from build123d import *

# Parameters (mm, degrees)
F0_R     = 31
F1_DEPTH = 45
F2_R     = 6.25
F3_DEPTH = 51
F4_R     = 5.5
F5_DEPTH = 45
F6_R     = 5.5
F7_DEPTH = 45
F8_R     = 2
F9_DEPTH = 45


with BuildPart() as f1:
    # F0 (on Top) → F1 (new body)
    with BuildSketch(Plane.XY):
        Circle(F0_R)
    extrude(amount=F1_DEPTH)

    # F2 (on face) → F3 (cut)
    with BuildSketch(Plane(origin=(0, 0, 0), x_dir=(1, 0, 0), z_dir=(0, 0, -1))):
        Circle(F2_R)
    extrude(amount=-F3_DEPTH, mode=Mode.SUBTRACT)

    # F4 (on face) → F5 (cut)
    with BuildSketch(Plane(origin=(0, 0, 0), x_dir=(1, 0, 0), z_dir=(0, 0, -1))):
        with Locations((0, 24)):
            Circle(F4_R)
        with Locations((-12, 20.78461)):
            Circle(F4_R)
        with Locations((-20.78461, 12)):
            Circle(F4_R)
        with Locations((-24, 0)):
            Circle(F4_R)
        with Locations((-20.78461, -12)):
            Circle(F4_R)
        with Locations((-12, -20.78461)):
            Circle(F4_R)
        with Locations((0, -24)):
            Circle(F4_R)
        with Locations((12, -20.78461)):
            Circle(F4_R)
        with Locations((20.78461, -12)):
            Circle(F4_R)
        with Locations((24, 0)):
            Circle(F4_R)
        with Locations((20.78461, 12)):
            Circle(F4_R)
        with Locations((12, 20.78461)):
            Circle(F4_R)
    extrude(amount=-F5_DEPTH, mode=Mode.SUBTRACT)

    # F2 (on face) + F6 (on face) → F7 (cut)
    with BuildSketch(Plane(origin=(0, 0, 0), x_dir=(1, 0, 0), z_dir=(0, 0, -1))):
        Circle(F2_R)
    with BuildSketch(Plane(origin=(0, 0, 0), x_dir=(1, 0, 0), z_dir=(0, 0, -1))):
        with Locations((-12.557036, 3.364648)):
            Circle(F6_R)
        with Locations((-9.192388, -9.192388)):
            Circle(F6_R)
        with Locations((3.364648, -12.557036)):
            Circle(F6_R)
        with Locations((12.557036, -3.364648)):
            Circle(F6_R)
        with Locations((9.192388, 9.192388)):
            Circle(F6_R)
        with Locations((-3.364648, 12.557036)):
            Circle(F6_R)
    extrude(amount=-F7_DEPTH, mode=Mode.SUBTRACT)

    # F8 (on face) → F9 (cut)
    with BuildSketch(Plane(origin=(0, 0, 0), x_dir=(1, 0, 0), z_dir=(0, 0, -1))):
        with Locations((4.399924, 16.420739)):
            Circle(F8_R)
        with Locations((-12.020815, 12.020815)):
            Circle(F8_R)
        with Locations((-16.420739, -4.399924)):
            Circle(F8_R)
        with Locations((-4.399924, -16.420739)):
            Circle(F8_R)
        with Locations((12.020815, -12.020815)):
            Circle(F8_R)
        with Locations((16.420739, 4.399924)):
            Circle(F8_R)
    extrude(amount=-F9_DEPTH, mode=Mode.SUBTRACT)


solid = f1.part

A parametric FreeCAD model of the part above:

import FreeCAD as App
import Part
import Sketcher

V = App.Vector
Q = App.Units.Quantity

doc = App.newDocument("Part")
body = doc.addObject("PartDesign::Body", "Body")

sketch1 = body.newObject("Sketcher::SketchObject", "Sketch")
sketch1.AttachmentSupport = (doc.getObject("XY_Plane"), [""])
sketch1.MapMode = "FlatFace"
sketch1.addGeometry(Part.Circle(V(0, 0, 0), V(0, 0, 1), 31), False)
sketch1.addConstraint(Sketcher.Constraint("Coincident", 0, 3, -1, 1))
sketch1.addConstraint(Sketcher.Constraint("Diameter", 0, Q("62 mm")))
pad1 = body.newObject("PartDesign::Pad", "Pad")
pad1.Profile = sketch1
pad1.Length = 45

sketch2 = body.newObject("Sketcher::SketchObject", "Sketch001")
sketch2.AttachmentSupport = (doc.getObject("XY_Plane"), [""])
sketch2.MapMode = "FlatFace"
sketch2.addGeometry(Part.Circle(V(0, 0, 0), V(0, 0, 1), 6), False)
sketch2.addConstraint(Sketcher.Constraint("Coincident", 0, 3, -1, 1))
sketch2.addConstraint(Sketcher.Constraint("Diameter", 0, Q("12.5 mm")))
pocket1 = body.newObject("PartDesign::Pocket", "Pocket")
pocket1.Profile = sketch2
pocket1.Length = 51
pocket1.Reversed = True

sketch3 = body.newObject("Sketcher::SketchObject", "Sketch002")
sketch3.AttachmentSupport = (doc.getObject("XY_Plane"), [""])
sketch3.MapMode = "FlatFace"
sketch3.addGeometry(Part.Circle(V(0, -24, 0), V(0, 0, 1), 6), False)
sketch3.addGeometry(Part.Circle(V(-12, -21, 0), V(0, 0, 1), 6), False)
sketch3.addGeometry(Part.Circle(V(-21, -12, 0), V(0, 0, 1), 6), False)
sketch3.addGeometry(Part.Circle(V(-24, 0, 0), V(0, 0, 1), 6), False)
sketch3.addGeometry(Part.Circle(V(-21, 12, 0), V(0, 0, 1), 6), False)
sketch3.addGeometry(Part.Circle(V(-12, 21, 0), V(0, 0, 1), 6), False)
sketch3.addGeometry(Part.Circle(V(0, 24, 0), V(0, 0, 1), 6), False)
sketch3.addGeometry(Part.Circle(V(12, 21, 0), V(0, 0, 1), 6), False)
sketch3.addGeometry(Part.Circle(V(21, 12, 0), V(0, 0, 1), 6), False)
sketch3.addGeometry(Part.Circle(V(24, 0, 0), V(0, 0, 1), 6), False)
sketch3.addGeometry(Part.Circle(V(21, -12, 0), V(0, 0, 1), 6), False)
sketch3.addGeometry(Part.Circle(V(12, -21, 0), V(0, 0, 1), 6), False)
sketch3.addConstraint(Sketcher.Constraint("Equal", 0, 1))
sketch3.addConstraint(Sketcher.Constraint("Equal", 1, 2))
sketch3.addConstraint(Sketcher.Constraint("Equal", 2, 3))
sketch3.addConstraint(Sketcher.Constraint("Equal", 3, 4))
sketch3.addConstraint(Sketcher.Constraint("Equal", 4, 5))
sketch3.addConstraint(Sketcher.Constraint("Equal", 5, 6))
sketch3.addConstraint(Sketcher.Constraint("Equal", 6, 7))
sketch3.addConstraint(Sketcher.Constraint("Equal", 7, 8))
sketch3.addConstraint(Sketcher.Constraint("Equal", 8, 9))
sketch3.addConstraint(Sketcher.Constraint("Equal", 9, 10))
sketch3.addConstraint(Sketcher.Constraint("Equal", 10, 11))
sketch3.addConstraint(Sketcher.Constraint("Symmetric", 0, 3, 6, 3, -1, 1))
sketch3.addConstraint(Sketcher.Constraint("Symmetric", 1, 3, 7, 3, -1, 1))
sketch3.addConstraint(Sketcher.Constraint("Symmetric", 2, 3, 8, 3, -1, 1))
sketch3.addConstraint(Sketcher.Constraint("Symmetric", 3, 3, 9, 3, -1, 1))
sketch3.addConstraint(Sketcher.Constraint("Symmetric", 4, 3, 10, 3, -1, 1))
sketch3.addConstraint(Sketcher.Constraint("Symmetric", 5, 3, 11, 3, -1, 1))
sketch3.addConstraint(Sketcher.Constraint("Symmetric", 5, 3, 7, 3, -2))
sketch3.addConstraint(Sketcher.Constraint("Symmetric", 4, 3, 8, 3, -2))
sketch3.addConstraint(Sketcher.Constraint("PointOnObject", 0, 3, -2))
sketch3.addConstraint(Sketcher.Constraint("PointOnObject", 3, 3, -1))
sketch3.addConstraint(Sketcher.Constraint("Diameter", 0, Q("11 mm")))
sketch3.addConstraint(Sketcher.Constraint("DistanceY", 0, 3, -1, 1, Q("24 mm")))
sketch3.addConstraint(Sketcher.Constraint("DistanceX", 1, 3, -1, 1, Q("12 mm")))
sketch3.addConstraint(Sketcher.Constraint("DistanceY", 2, 3, -1, 1, Q("12 mm")))
sketch3.addConstraint(Sketcher.Constraint("DistanceX", 3, 3, -1, 1, Q("24 mm")))
sketch3.addConstraint(Sketcher.Constraint("DistanceY", 1, 3, -1, 1, Q("20.78461 mm")))
sketch3.addConstraint(Sketcher.Constraint("DistanceX", 2, 3, -1, 1, Q("20.78461 mm")))
pocket2 = body.newObject("PartDesign::Pocket", "Pocket001")
pocket2.Profile = sketch3
pocket2.Length = 45
pocket2.Reversed = True

sketch4 = body.newObject("Sketcher::SketchObject", "Sketch003")
sketch4.AttachmentSupport = (doc.getObject("XY_Plane"), [""])
sketch4.MapMode = "FlatFace"
sketch4.addGeometry(Part.Circle(V(0, 0, 0), V(0, 0, 1), 6), False)
sketch4.addGeometry(Part.Circle(V(-13, -3, 0), V(0, 0, 1), 6), False)
sketch4.addGeometry(Part.Circle(V(-9, 9, 0), V(0, 0, 1), 6), False)
sketch4.addGeometry(Part.Circle(V(3, 13, 0), V(0, 0, 1), 6), False)
sketch4.addGeometry(Part.Circle(V(13, 3, 0), V(0, 0, 1), 6), False)
sketch4.addGeometry(Part.Circle(V(9, -9, 0), V(0, 0, 1), 6), False)
sketch4.addGeometry(Part.Circle(V(-3, -13, 0), V(0, 0, 1), 6), False)
sketch4.addConstraint(Sketcher.Constraint("Coincident", 0, 3, -1, 1))
sketch4.addConstraint(Sketcher.Constraint("Equal", 1, 2))
sketch4.addConstraint(Sketcher.Constraint("Equal", 2, 3))
sketch4.addConstraint(Sketcher.Constraint("Equal", 3, 4))
sketch4.addConstraint(Sketcher.Constraint("Equal", 4, 5))
sketch4.addConstraint(Sketcher.Constraint("Equal", 5, 6))
sketch4.addConstraint(Sketcher.Constraint("Symmetric", 1, 3, 4, 3, -1, 1))
sketch4.addConstraint(Sketcher.Constraint("Symmetric", 2, 3, 5, 3, -1, 1))
sketch4.addConstraint(Sketcher.Constraint("Symmetric", 3, 3, 6, 3, -1, 1))
sketch4.addConstraint(Sketcher.Constraint("Diameter", 1, Q("11 mm")))
sketch4.addConstraint(Sketcher.Constraint("Diameter", 0, Q("12.5 mm")))
sketch4.addConstraint(Sketcher.Constraint("DistanceX", 1, 3, 2, 3, Q("3.364648 mm")))
sketch4.addConstraint(Sketcher.Constraint("DistanceY", 2, 3, 3, 3, Q("3.364648 mm")))
sketch4.addConstraint(Sketcher.Constraint("DistanceX", 3, 3, 4, 3, Q("9.192388 mm")))
sketch4.addConstraint(Sketcher.Constraint("DistanceY", 4, 3, 3, 3, Q("9.192388 mm")))
sketch4.addConstraint(Sketcher.Constraint("DistanceX", 1, 3, 4, 3, Q("25.114072 mm")))
sketch4.addConstraint(Sketcher.Constraint("DistanceY", 1, 3, -1, 1, Q("3.364648 mm")))
pocket3 = body.newObject("PartDesign::Pocket", "Pocket002")
pocket3.Profile = sketch4
pocket3.Length = 45
pocket3.Reversed = True

sketch5 = body.newObject("Sketcher::SketchObject", "Sketch004")
sketch5.AttachmentSupport = (doc.getObject("XY_Plane"), [""])
sketch5.MapMode = "FlatFace"
sketch5.addGeometry(Part.Circle(V(4.4, -16.4, 0), V(0, 0, 1), 2), False)
sketch5.addGeometry(Part.Circle(V(-12, -12, 0), V(0, 0, 1), 2), False)
sketch5.addGeometry(Part.Circle(V(-16.4, 4.4, 0), V(0, 0, 1), 2), False)
sketch5.addGeometry(Part.Circle(V(-4.4, 16.4, 0), V(0, 0, 1), 2), False)
sketch5.addGeometry(Part.Circle(V(12, 12, 0), V(0, 0, 1), 2), False)
sketch5.addGeometry(Part.Circle(V(16.4, -4.4, 0), V(0, 0, 1), 2), False)
sketch5.addConstraint(Sketcher.Constraint("Equal", 0, 1))
sketch5.addConstraint(Sketcher.Constraint("Equal", 1, 2))
sketch5.addConstraint(Sketcher.Constraint("Equal", 2, 3))
sketch5.addConstraint(Sketcher.Constraint("Equal", 3, 4))
sketch5.addConstraint(Sketcher.Constraint("Equal", 4, 5))
sketch5.addConstraint(Sketcher.Constraint("Symmetric", 0, 3, 3, 3, -1, 1))
sketch5.addConstraint(Sketcher.Constraint("Symmetric", 1, 3, 4, 3, -1, 1))
sketch5.addConstraint(Sketcher.Constraint("Symmetric", 2, 3, 5, 3, -1, 1))
sketch5.addConstraint(Sketcher.Constraint("Diameter", 0, Q("4 mm")))
sketch5.addConstraint(Sketcher.Constraint("DistanceY", 0, 3, -1, 1, Q("16.420739 mm")))
sketch5.addConstraint(Sketcher.Constraint("DistanceX", 2, 3, -1, 1, Q("16.420739 mm")))
sketch5.addConstraint(Sketcher.Constraint("DistanceX", 1, 3, 0, 3, Q("16.420739 mm")))
sketch5.addConstraint(Sketcher.Constraint("DistanceY", 1, 3, 2, 3, Q("16.420739 mm")))
sketch5.addConstraint(Sketcher.Constraint("DistanceX", 1, 3, 3, 3, Q("7.620891 mm")))
sketch5.addConstraint(Sketcher.Constraint("DistanceY", 2, 3, 4, 3, Q("7.620891 mm")))
pocket4 = body.newObject("PartDesign::Pocket", "Pocket003")
pocket4.Profile = sketch5
pocket4.Length = 45
pocket4.Reversed = True

doc.recompute()
